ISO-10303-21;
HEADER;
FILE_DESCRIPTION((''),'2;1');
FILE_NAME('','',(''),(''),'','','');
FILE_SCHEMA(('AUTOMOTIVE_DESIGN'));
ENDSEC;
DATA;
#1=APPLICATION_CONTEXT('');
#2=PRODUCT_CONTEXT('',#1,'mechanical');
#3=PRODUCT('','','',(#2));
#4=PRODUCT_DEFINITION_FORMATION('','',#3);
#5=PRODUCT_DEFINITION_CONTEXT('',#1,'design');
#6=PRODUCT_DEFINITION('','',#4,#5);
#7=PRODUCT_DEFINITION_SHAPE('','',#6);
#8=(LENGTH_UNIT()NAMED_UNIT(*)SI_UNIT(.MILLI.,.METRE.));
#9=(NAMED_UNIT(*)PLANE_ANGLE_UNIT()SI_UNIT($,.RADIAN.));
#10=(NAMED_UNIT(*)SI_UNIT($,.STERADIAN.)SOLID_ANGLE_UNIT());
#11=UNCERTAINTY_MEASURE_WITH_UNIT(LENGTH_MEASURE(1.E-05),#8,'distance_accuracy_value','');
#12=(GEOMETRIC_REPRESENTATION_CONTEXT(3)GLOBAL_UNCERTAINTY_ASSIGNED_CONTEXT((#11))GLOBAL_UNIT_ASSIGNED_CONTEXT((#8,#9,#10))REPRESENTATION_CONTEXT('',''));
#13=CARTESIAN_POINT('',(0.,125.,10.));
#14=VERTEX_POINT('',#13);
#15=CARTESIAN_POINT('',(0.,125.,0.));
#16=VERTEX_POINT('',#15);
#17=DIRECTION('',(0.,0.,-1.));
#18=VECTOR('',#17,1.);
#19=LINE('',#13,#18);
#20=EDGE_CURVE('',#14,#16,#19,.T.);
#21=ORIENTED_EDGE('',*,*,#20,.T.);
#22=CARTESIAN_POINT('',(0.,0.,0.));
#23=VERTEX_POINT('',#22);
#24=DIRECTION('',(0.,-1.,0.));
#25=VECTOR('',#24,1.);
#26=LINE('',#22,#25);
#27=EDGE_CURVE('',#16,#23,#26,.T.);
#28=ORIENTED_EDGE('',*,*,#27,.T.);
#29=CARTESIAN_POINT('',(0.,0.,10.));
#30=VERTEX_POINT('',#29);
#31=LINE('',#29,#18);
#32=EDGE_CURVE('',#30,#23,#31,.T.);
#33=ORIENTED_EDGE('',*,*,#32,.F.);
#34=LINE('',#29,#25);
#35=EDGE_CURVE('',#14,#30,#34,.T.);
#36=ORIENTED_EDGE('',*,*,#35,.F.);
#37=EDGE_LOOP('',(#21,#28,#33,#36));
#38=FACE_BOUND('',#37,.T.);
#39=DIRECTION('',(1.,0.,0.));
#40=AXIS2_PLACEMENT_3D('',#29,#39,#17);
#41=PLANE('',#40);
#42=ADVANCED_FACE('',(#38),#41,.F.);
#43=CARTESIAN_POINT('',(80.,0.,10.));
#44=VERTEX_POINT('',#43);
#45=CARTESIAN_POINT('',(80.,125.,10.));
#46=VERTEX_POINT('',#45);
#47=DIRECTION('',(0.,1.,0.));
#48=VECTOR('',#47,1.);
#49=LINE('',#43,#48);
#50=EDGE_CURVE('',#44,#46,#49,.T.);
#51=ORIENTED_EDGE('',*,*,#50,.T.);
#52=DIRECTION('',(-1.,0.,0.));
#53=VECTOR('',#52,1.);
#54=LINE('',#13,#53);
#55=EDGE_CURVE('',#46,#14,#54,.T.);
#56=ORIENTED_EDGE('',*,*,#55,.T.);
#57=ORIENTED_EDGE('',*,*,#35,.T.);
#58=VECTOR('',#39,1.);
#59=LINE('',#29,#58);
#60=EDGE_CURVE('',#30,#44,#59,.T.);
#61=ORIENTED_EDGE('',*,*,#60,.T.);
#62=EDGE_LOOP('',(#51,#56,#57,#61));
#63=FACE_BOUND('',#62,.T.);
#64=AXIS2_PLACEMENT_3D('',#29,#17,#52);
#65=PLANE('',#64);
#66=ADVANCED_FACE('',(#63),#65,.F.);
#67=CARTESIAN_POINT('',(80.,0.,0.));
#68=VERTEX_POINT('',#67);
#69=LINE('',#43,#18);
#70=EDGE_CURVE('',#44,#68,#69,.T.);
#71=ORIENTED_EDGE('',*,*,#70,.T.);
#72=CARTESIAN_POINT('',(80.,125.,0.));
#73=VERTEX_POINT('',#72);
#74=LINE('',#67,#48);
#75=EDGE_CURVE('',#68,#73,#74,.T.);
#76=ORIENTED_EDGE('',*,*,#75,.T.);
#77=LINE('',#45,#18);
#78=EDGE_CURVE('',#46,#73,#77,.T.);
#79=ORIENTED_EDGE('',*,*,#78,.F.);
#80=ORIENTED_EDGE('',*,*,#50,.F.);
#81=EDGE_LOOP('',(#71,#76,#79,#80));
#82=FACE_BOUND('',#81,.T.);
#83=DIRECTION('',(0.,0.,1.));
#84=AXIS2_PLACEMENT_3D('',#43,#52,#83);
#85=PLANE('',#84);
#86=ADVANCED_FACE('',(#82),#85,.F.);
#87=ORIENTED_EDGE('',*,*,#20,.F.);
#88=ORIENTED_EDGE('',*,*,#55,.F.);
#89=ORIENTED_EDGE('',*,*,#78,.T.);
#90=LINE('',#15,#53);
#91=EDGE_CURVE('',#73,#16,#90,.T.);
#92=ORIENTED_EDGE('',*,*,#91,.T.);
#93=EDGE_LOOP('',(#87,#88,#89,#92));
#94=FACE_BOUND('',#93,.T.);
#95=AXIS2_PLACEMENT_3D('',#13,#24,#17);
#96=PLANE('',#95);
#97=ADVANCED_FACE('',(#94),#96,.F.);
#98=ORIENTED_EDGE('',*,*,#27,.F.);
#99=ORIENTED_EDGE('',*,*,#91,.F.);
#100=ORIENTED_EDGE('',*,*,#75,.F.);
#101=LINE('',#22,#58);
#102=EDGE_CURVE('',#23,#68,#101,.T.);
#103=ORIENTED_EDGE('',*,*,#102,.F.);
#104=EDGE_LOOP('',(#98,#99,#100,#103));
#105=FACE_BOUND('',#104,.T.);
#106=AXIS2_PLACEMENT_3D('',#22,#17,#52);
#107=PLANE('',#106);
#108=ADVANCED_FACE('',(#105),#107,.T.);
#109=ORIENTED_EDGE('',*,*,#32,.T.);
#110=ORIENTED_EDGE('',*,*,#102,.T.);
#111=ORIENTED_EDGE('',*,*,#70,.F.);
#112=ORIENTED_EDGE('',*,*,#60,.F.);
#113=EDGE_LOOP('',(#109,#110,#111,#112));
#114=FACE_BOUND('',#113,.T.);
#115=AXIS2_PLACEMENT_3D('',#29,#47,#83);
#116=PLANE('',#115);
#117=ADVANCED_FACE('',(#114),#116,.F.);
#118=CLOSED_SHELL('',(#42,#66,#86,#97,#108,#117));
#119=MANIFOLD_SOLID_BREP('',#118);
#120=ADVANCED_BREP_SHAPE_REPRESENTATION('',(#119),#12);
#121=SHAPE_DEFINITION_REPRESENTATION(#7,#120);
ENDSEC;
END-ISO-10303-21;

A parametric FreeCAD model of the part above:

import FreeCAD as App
import Part
import Sketcher
from FreeCAD import Vector


def add_polygon(sketch, points):
    """Adds a closed chain of lines whose ends are joined by coincident constraints."""
    first, n = sketch.GeometryCount, len(points)
    for a, b in zip(points, points[1:] + points[:1]):
        sketch.addGeometry(Part.LineSegment(App.Vector(*a, 0), App.Vector(*b, 0)), False)
    for i in range(n):
        sketch.addConstraint(Sketcher.Constraint("Coincident", first + i, 2, first + (i + 1) % n, 1))

doc = App.newDocument("Part")
body = doc.addObject("PartDesign::Body", "Body")

sketch1 = body.newObject("Sketcher::SketchObject", "Sketch")
sketch1.AttachmentSupport = (doc.getObject("XY_Plane"), [""])
sketch1.MapMode = "FlatFace"
add_polygon(sketch1, [(0, 125), (0, 0), (80, 0), (80, 125)])
sketch1.addConstraint(Sketcher.Constraint("Vertical", 0))
sketch1.addConstraint(Sketcher.Constraint("Horizontal", 1))
sketch1.addConstraint(Sketcher.Constraint("Vertical", 2))
sketch1.addConstraint(Sketcher.Constraint("Horizontal", 3))
sketch1.addConstraint(Sketcher.Constraint("Coincident", 0, 2, -1, 1))
sketch1.addConstraint(Sketcher.Constraint("DistanceX", 1, 1, 1, 2, 80.0))
sketch1.addConstraint(Sketcher.Constraint("DistanceY", 0, 2, 0, 1, 125.0))
pad1 = body.newObject("PartDesign::Pad", "Pad")
pad1.Profile = sketch1
pad1.Length = 10

doc.recompute()
